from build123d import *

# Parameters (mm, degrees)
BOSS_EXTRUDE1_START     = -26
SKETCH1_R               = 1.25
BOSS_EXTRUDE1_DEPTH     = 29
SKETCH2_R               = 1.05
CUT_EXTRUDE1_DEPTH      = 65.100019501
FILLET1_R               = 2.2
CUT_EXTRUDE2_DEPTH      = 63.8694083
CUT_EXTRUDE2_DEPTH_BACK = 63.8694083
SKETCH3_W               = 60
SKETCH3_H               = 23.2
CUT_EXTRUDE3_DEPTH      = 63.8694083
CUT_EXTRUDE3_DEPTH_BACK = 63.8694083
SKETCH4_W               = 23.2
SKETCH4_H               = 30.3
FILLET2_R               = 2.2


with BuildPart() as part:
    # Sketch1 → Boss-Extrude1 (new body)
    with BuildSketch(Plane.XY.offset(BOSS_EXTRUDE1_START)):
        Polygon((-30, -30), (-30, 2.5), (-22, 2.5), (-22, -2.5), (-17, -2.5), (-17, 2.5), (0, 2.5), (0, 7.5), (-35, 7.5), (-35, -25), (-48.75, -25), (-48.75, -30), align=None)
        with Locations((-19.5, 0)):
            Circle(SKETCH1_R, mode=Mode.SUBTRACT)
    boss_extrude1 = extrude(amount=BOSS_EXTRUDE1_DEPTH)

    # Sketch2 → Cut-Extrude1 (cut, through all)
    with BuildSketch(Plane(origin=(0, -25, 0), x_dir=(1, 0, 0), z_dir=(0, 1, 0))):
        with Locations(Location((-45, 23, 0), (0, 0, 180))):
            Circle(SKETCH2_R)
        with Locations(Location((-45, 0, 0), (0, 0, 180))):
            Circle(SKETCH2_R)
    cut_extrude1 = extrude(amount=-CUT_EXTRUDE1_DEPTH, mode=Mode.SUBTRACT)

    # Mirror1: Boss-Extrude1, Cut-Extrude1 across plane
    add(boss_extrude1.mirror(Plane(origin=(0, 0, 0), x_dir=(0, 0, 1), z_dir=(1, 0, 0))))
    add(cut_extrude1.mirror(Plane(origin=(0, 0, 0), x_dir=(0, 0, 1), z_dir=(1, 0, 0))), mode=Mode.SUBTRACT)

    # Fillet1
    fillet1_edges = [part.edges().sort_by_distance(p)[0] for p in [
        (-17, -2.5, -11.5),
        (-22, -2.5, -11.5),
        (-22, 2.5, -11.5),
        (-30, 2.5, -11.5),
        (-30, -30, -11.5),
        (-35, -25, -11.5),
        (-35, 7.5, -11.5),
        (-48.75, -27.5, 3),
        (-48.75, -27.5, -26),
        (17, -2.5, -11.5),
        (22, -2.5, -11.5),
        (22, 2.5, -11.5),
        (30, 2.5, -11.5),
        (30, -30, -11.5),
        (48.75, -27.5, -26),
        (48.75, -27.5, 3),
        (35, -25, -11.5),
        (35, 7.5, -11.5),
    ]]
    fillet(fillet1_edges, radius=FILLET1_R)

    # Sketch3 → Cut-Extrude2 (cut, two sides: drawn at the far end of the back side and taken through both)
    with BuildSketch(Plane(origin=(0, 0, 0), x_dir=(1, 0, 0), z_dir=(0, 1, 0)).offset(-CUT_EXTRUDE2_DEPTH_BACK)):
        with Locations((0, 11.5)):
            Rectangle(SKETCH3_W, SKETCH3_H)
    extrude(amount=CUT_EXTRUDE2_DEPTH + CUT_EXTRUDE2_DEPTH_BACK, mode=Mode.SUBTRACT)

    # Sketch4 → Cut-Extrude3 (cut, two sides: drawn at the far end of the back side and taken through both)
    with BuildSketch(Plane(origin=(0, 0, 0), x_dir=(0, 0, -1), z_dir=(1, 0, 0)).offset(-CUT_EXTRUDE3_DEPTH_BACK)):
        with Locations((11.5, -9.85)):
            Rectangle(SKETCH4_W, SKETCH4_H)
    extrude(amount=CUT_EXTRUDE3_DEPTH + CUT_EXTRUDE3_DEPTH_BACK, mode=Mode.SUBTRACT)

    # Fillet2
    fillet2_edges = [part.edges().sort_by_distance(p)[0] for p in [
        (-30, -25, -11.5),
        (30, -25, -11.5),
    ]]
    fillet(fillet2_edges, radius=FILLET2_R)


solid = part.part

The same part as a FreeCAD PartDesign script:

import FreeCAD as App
import Part
import Sketcher
Q = App.Units.Quantity


def edges_at(feature, points):
    """Names of the edges that pass closest to the given points."""
    edges = feature.Shape.Edges
    near = lambda p: min(range(len(edges)), key=lambda i: edges[i].distToShape(Part.Vertex(*p))[0])
    return sorted({f"Edge{near(p) + 1}" for p in points})


def add_polygon(sketch, points):
    """Adds a closed chain of lines whose ends are joined by coincident constraints."""
    first, n = sketch.GeometryCount, len(points)
    for a, b in zip(points, points[1:] + points[:1]):
        sketch.addGeometry(Part.LineSegment(App.Vector(*a, 0), App.Vector(*b, 0)), False)
    for i in range(n):
        sketch.addConstraint(Sketcher.Constraint("Coincident", first + i, 2, first + (i + 1) % n, 1))

doc = App.newDocument("Part")
body = doc.addObject("PartDesign::Body", "Body")

# Sketch on XY plane
sketch1 = body.newObject("Sketcher::SketchObject", "Sketch")
sketch1.AttachmentSupport = (doc.getObject("XY_Plane"), [""])
sketch1.MapMode = "FlatFace"
sketch1.AttachmentOffset = App.Placement(App.Vector(0, 0, -26), App.Rotation())
add_polygon(sketch1, [(-30, -30), (-30, 2.5), (-22, 2.5), (-22, -2.5), (-17, -2.5), (-17, 2.5), (0, 2.5), (0, 7.5), (-35, 7.5), (-35, -25), (-48.8, -25), (-48.8, -30)])  # lines 0-11
sketch1.addGeometry(Part.Circle(App.Vector(-19.5, 0, 0), App.Vector(0, 0, 1), 1.2), False)  # 12
sketch1.addConstraint(Sketcher.Constraint("Vertical", 0))
sketch1.addConstraint(Sketcher.Constraint("Horizontal", 1))
sketch1.addConstraint(Sketcher.Constraint("Vertical", 2))
sketch1.addConstraint(Sketcher.Constraint("Horizontal", 3))
sketch1.addConstraint(Sketcher.Constraint("Vertical", 4))
sketch1.addConstraint(Sketcher.Constraint("Horizontal", 5))
sketch1.addConstraint(Sketcher.Constraint("Vertical", 6))
sketch1.addConstraint(Sketcher.Constraint("Horizontal", 7))
sketch1.addConstraint(Sketcher.Constraint("Vertical", 8))
sketch1.addConstraint(Sketcher.Constraint("Horizontal", 9))
sketch1.addConstraint(Sketcher.Constraint("Vertical", 10))
sketch1.addConstraint(Sketcher.Constraint("Horizontal", 11))
sketch1.addConstraint(Sketcher.Constraint("PointOnObject", 12, 3, -1))
sketch1.addConstraint(Sketcher.Constraint("PointOnObject", 5, 2, -2))
sketch1.addConstraint(Sketcher.Constraint("Horizontal", 1, 2, 4, 2))
sketch1.addConstraint(Sketcher.Constraint("Equal", 3, 2))
sketch1.addConstraint(Sketcher.Constraint("Equal", 4, 6))
sketch1.addConstraint(Sketcher.Constraint("Equal", 0, 8))
sketch1.addConstraint(Sketcher.Constraint("Diameter", 12, Q("2.5 mm")))
sketch1.addConstraint(Sketcher.Constraint("DistanceX", 1, 1, 1, 2, Q("8 mm")))
sketch1.addConstraint(Sketcher.Constraint("DistanceX", 3, 1, 3, 2, Q("5 mm")))
sketch1.addConstraint(Sketcher.Constraint("DistanceX", 5, 1, 5, 2, Q("17 mm")))
sketch1.addConstraint(Sketcher.Constraint("DistanceX", 7, 2, 7, 1, Q("35 mm")))
sketch1.addConstraint(Sketcher.Constraint("DistanceY", 0, 1, 0, 2, Q("32.5 mm")))
sketch1.addConstraint(Sketcher.Constraint("DistanceY", 8, 2, -1, 1, Q("25 mm")))
sketch1.addConstraint(Sketcher.Constraint("DistanceX", 9, 2, 9, 1, Q("13.75 mm")))
sketch1.addConstraint(Sketcher.Constraint("DistanceX", 12, 3, -1, 1, Q("19.5 mm")))
pad1 = body.newObject("PartDesign::Pad", "Pad")
pad1.Profile = sketch1
pad1.Length = 29

# Sketch on XZ plane
sketch2 = body.newObject("Sketcher::SketchObject", "Sketch001")
sketch2.AttachmentSupport = (doc.getObject("XZ_Plane"), [""])
sketch2.MapMode = "FlatFace"
sketch2.AttachmentOffset = App.Placement(App.Vector(0, 0, 25), App.Rotation())
sketch2.addGeometry(Part.Circle(App.Vector(-45, -23, 0), App.Vector(0, 0, 1), 1.1), False)
sketch2.addGeometry(Part.Circle(App.Vector(-45, 0, 0), App.Vector(0, 0, 1), 1.1), False)
sketch2.addConstraint(Sketcher.Constraint("Equal", 0, 1))
sketch2.addConstraint(Sketcher.Constraint("PointOnObject", 1, 3, -1))
sketch2.addConstraint(Sketcher.Constraint("Vertical", 0, 3, 1, 3))
sketch2.addConstraint(Sketcher.Constraint("Diameter", 0, Q("2.1 mm")))
sketch2.addConstraint(Sketcher.Constraint("DistanceX", 0, 3, -1, 1, Q("45 mm")))
sketch2.addConstraint(Sketcher.Constraint("DistanceY", 0, 3, -1, 1, Q("23 mm")))
pocket1 = body.newObject("PartDesign::Pocket", "Pocket")
pocket1.Profile = sketch2
pocket1.Type = "ThroughAll"
pocket1.Reversed = True
doc.recompute()

mirrored = body.newObject("PartDesign::Mirrored", "Mirrored")
mirrored.Originals = [pad1, pocket1]
mirrored.MirrorPlane = (doc.getObject("YZ_Plane"), [""])
body.Tip = mirrored
doc.recompute()

fillet = body.newObject("PartDesign::Fillet", "Fillet")
fillet.Base = (mirrored, edges_at(mirrored, [
    (-17, -2.5, -11.5),
    (-22, -2.5, -11.5),
    (-22, 2.5, -11.5),
    (-30, 2.5, -11.5),
    (-30, -30, -11.5),
    (-35, -25, -11.5),
    (-35, 7.5, -11.5),
    (-48.75, -27.5, 3),
    (-48.75, -27.5, -26),
    (17, -2.5, -11.5),
    (22, -2.5, -11.5),
    (22, 2.5, -11.5),
    (30, 2.5, -11.5),
    (30, -30, -11.5),
    (48.75, -27.5, -26),
    (48.75, -27.5, 3),
    (35, -25, -11.5),
    (35, 7.5, -11.5),
]))
fillet.Radius = 2.2

# Sketch on XZ plane
sketch3 = body.newObject("Sketcher::SketchObject", "Sketch002")
sketch3.AttachmentSupport = (doc.getObject("XZ_Plane"), [""])
sketch3.MapMode = "FlatFace"
add_polygon(sketch3, [(-30, -23), (-30, 0), (30, 0), (30, -23)])  # lines 0-3
sketch3.addConstraint(Sketcher.Constraint("Vertical", 0))
sketch3.addConstraint(Sketcher.Constraint("Horizontal", 1))
sketch3.addConstraint(Sketcher.Constraint("Vertical", 2))
sketch3.addConstraint(Sketcher.Constraint("Horizontal", 3))
sketch3.addConstraint(Sketcher.Constraint("DistanceX", 1, 1, 1, 2, Q("60 mm")))
sketch3.addConstraint(Sketcher.Constraint("DistanceY", 0, 1, 0, 2, Q("23.2 mm")))
sketch3.addConstraint(Sketcher.Constraint("DistanceX", 0, 2, -1, 1, Q("30 mm")))
sketch3.addConstraint(Sketcher.Constraint("DistanceY", -1, 1, 0, 2, Q("0.1 mm")))
pocket2 = body.newObject("PartDesign::Pocket", "Pocket001")
pocket2.Profile = sketch3
pocket2.Type = "ThroughAll"
pocket2.Midplane = True

# Sketch on YZ plane
sketch4 = body.newObject("Sketcher::SketchObject", "Sketch003")
sketch4.AttachmentSupport = (doc.getObject("YZ_Plane"), [""])
sketch4.MapMode = "FlatFace"
add_polygon(sketch4, [(5, 0), (-25, 0), (-25, -23), (5, -23)])  # lines 0-3
sketch4.addConstraint(Sketcher.Constraint("Horizontal", 0))
sketch4.addConstraint(Sketcher.Constraint("Vertical", 1))
sketch4.addConstraint(Sketcher.Constraint("Horizontal", 2))
sketch4.addConstraint(Sketcher.Constraint("Vertical", 3))
sketch4.addConstraint(Sketcher.Constraint("DistanceX", 0, 2, 0, 1, Q("30.3 mm")))
sketch4.addConstraint(Sketcher.Constraint("DistanceY", 1, 2, 1, 1, Q("23.2 mm")))
sketch4.addConstraint(Sketcher.Constraint("DistanceX", 0, 2, -1, 1, Q("25 mm")))
sketch4.addConstraint(Sketcher.Constraint("DistanceY", -1, 1, 0, 2, Q("0.1 mm")))
pocket3 = body.newObject("PartDesign::Pocket", "Pocket002")
pocket3.Profile = sketch4
pocket3.Type = "ThroughAll"
pocket3.Midplane = True
doc.recompute()

fillet2 = body.newObject("PartDesign::Fillet", "Fillet001")
fillet2.Base = (pocket3, edges_at(pocket3, [(-30, -25, -11.5), (30, -25, -11.5)]))
fillet2.Radius = 2.2

doc.recompute()
